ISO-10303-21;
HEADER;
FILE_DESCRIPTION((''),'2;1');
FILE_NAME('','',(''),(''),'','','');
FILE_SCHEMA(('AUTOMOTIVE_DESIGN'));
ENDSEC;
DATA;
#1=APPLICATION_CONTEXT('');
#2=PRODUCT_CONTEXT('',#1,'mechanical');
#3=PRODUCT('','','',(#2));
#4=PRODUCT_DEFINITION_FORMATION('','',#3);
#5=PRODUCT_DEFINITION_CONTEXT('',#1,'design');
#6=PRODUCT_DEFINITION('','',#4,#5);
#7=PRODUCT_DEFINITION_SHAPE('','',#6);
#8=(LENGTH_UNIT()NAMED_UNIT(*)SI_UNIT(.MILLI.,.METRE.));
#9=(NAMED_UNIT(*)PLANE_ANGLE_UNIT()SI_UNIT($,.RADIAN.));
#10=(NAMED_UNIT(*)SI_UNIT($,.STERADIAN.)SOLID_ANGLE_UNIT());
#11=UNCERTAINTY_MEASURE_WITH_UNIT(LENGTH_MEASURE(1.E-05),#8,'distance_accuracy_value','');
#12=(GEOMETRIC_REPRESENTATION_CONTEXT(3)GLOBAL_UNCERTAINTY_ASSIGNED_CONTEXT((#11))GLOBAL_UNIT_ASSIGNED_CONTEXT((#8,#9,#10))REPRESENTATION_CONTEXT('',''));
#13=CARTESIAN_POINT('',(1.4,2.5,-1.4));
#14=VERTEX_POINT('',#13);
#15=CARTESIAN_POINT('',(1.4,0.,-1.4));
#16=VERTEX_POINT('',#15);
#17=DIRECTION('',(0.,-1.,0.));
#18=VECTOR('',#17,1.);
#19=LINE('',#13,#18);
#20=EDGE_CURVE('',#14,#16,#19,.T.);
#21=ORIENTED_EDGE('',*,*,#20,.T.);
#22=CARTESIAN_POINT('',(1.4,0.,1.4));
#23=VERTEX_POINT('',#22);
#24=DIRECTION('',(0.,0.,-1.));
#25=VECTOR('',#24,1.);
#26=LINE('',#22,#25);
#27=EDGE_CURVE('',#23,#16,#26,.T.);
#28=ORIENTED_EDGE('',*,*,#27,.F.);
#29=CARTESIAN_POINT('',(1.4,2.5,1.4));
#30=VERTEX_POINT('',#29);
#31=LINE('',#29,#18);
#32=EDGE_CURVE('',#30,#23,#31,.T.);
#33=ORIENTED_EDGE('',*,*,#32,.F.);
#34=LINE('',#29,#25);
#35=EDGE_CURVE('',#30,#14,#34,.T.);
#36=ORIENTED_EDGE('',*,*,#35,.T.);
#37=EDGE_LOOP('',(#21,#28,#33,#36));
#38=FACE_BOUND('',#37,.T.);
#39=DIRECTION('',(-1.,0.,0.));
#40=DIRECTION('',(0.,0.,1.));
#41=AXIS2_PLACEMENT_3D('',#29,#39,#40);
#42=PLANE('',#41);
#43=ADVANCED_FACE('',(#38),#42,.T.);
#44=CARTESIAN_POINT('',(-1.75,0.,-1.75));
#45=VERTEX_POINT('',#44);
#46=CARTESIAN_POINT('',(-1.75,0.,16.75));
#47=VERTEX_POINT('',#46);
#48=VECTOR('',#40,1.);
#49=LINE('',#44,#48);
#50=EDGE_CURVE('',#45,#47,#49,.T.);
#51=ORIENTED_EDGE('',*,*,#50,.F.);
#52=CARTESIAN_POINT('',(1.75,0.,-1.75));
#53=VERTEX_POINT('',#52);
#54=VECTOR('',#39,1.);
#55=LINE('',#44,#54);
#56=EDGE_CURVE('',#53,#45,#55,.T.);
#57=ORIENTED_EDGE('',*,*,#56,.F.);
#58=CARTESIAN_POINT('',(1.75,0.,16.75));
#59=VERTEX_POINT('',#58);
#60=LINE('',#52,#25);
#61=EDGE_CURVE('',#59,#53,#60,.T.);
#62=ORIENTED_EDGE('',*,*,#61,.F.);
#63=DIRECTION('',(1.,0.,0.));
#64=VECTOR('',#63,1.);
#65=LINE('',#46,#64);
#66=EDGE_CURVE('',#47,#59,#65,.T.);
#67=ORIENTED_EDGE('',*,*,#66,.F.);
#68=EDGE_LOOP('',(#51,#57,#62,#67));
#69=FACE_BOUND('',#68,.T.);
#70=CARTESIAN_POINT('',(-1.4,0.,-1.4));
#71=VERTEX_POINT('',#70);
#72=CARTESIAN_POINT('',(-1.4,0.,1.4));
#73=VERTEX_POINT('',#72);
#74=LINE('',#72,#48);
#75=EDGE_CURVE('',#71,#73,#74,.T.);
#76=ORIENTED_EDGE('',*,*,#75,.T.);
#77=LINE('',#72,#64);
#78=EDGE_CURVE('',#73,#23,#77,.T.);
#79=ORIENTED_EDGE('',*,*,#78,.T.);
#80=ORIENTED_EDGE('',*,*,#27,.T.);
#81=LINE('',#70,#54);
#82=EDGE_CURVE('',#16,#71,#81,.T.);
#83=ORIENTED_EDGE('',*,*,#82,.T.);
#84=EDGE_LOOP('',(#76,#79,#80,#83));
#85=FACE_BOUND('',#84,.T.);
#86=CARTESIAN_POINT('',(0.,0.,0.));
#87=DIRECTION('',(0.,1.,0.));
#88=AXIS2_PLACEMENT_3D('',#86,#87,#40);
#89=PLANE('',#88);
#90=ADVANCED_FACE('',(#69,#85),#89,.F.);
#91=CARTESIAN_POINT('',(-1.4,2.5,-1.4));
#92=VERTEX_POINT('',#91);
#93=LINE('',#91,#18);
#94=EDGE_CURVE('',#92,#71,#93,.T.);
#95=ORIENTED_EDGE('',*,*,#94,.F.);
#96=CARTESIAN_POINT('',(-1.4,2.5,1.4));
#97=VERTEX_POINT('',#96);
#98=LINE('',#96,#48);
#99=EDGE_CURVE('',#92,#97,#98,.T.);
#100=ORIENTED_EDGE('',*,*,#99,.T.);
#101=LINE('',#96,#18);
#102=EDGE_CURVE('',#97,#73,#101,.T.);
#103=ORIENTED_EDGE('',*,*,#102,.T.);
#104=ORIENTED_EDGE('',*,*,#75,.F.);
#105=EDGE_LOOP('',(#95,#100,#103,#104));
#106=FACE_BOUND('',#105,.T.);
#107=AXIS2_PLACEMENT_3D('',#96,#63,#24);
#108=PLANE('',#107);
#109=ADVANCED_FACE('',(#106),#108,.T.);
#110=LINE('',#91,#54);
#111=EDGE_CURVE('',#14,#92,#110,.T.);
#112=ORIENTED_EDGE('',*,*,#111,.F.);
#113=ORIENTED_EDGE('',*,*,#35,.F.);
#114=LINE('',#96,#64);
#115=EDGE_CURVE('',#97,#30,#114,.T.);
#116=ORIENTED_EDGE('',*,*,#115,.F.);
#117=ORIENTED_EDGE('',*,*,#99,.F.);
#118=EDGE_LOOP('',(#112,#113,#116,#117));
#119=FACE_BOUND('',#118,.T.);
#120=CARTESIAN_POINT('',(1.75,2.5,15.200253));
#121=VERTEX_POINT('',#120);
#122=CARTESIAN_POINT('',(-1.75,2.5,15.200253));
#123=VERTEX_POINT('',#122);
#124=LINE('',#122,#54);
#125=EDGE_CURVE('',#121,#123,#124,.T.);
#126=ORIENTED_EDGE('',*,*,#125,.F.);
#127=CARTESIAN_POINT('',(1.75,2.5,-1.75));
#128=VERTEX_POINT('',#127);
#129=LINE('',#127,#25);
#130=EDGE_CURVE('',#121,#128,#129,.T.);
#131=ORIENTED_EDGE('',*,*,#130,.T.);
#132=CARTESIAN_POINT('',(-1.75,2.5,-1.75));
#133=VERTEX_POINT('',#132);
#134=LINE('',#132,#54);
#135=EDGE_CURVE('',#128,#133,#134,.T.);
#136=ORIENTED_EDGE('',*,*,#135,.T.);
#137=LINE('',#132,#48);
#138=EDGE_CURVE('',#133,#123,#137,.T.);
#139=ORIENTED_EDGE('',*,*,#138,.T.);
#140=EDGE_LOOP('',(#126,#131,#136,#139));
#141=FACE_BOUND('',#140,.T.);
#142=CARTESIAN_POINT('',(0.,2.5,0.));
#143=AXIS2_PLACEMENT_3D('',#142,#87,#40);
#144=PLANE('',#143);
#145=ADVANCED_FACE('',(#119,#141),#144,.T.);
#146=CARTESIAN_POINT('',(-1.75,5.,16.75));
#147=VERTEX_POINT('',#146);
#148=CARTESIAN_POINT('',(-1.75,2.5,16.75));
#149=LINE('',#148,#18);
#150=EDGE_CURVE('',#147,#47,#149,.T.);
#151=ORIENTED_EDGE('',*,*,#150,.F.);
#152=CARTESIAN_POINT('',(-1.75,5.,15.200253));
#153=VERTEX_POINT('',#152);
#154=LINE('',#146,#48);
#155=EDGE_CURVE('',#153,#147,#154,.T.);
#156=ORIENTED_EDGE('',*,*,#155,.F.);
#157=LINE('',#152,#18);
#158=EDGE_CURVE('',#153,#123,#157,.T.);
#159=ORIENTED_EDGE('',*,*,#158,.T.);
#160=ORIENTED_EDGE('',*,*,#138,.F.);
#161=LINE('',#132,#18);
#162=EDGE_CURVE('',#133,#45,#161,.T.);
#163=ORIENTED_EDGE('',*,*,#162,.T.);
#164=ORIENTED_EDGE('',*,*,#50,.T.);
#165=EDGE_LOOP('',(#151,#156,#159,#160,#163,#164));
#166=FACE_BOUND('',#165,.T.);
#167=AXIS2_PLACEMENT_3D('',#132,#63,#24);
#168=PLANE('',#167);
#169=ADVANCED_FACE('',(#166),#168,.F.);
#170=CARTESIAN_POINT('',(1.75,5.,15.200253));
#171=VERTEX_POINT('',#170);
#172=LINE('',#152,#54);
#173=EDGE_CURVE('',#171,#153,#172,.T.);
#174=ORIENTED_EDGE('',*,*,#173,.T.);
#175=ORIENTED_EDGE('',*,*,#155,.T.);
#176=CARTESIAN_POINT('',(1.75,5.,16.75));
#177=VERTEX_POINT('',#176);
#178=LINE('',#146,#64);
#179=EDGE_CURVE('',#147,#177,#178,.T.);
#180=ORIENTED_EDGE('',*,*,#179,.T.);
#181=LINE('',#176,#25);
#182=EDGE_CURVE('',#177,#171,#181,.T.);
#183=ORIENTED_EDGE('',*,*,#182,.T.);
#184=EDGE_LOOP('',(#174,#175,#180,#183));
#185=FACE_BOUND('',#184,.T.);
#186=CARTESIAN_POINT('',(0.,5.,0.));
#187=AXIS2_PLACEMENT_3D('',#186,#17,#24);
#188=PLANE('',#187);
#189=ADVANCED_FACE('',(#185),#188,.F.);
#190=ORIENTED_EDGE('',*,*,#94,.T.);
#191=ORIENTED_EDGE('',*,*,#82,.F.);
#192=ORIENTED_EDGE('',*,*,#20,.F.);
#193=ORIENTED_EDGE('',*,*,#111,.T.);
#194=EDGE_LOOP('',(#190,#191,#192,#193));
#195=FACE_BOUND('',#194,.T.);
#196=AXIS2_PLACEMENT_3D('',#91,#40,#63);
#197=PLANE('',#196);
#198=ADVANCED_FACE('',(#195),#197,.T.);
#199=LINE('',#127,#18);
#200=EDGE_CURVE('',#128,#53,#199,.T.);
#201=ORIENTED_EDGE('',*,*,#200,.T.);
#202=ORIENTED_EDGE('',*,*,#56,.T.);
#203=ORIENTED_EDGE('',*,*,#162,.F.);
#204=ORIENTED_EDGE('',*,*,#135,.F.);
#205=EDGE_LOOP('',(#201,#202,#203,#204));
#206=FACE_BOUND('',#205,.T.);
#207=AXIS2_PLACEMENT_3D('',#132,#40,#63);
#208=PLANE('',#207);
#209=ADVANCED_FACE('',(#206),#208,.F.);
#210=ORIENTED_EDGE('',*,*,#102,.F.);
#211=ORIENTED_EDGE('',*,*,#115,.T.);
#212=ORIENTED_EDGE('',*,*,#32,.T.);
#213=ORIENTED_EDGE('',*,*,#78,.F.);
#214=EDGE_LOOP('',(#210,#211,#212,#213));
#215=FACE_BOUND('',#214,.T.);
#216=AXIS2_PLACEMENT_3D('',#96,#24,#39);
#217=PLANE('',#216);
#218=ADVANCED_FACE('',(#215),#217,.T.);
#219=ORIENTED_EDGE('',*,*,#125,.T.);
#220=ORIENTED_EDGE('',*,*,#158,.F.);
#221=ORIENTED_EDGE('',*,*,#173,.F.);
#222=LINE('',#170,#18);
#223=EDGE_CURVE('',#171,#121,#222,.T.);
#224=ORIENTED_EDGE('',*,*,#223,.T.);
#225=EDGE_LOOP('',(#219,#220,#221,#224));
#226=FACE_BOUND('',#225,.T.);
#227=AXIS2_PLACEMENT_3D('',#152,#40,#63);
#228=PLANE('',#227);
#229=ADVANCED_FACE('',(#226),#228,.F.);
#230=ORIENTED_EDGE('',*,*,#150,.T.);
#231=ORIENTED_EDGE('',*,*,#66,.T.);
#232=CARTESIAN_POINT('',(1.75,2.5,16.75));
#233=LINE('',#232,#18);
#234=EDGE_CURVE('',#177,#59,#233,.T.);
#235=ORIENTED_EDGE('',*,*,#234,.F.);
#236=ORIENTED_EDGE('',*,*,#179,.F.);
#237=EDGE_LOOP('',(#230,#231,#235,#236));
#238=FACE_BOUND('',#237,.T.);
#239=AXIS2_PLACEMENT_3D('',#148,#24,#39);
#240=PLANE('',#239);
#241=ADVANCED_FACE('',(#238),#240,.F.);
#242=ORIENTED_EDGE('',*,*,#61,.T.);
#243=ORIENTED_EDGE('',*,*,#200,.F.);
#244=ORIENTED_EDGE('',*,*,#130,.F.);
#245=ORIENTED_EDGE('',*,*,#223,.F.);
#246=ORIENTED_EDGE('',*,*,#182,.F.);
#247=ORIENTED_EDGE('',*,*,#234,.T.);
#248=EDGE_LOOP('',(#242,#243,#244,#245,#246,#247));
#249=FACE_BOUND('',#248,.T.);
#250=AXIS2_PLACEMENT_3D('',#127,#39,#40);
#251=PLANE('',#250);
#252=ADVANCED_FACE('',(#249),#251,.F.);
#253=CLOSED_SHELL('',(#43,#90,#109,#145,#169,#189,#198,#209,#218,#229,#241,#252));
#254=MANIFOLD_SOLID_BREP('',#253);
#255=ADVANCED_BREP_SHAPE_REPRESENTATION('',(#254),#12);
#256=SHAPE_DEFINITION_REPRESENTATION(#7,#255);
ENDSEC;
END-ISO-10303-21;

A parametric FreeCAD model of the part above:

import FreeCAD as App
import Part
import Sketcher
from FreeCAD import Vector

doc = App.newDocument("Part")
body = doc.addObject("PartDesign::Body", "Body")

sketch1 = doc.addObject("Sketcher::SketchObject", "Sketch")
body.addObject(sketch1)
sketch1.AttachmentSupport = (doc.XZ_Plane, [""])
sketch1.MapMode = "FlatFace"
sketch1.addGeometry(Part.LineSegment(Vector(-1.75, -1.75, 0), Vector(-1.75, 16.75, 0)), False)
sketch1.addGeometry(Part.LineSegment(Vector(-1.75, 16.75, 0), Vector(1.75, 16.75, 0)), False)
sketch1.addGeometry(Part.LineSegment(Vector(1.75, 16.75, 0), Vector(1.75, -1.75, 0)), False)
sketch1.addGeometry(Part.LineSegment(Vector(1.75, -1.75, 0), Vector(-1.75, -1.75, 0)), False)
sketch1.addGeometry(Part.LineSegment(Vector(1.4, 1.4, 0), Vector(-1.4, 1.4, 0)), False)
sketch1.addGeometry(Part.LineSegment(Vector(-1.4, 1.4, 0), Vector(-1.4, -1.4, 0)), False)
sketch1.addGeometry(Part.LineSegment(Vector(-1.4, -1.4, 0), Vector(1.4, -1.4, 0)), False)
sketch1.addGeometry(Part.LineSegment(Vector(1.4, -1.4, 0), Vector(1.4, 1.4, 0)), False)
sketch1.addConstraint(Sketcher.Constraint("Coincident", 0, 2, 1, 1))
sketch1.addConstraint(Sketcher.Constraint("Coincident", 1, 2, 2, 1))
sketch1.addConstraint(Sketcher.Constraint("Coincident", 2, 2, 3, 1))
sketch1.addConstraint(Sketcher.Constraint("Coincident", 3, 2, 0, 1))
sketch1.addConstraint(Sketcher.Constraint("Coincident", 4, 2, 5, 1))
sketch1.addConstraint(Sketcher.Constraint("Coincident", 5, 2, 6, 1))
sketch1.addConstraint(Sketcher.Constraint("Coincident", 6, 2, 7, 1))
sketch1.addConstraint(Sketcher.Constraint("Coincident", 7, 2, 4, 1))
sketch1.addConstraint(Sketcher.Constraint("Vertical", 0))
sketch1.addConstraint(Sketcher.Constraint("Horizontal", 1))
sketch1.addConstraint(Sketcher.Constraint("Vertical", 2))
sketch1.addConstraint(Sketcher.Constraint("Horizontal", 3))
sketch1.addConstraint(Sketcher.Constraint("Horizontal", 4))
sketch1.addConstraint(Sketcher.Constraint("Vertical", 5))
sketch1.addConstraint(Sketcher.Constraint("Horizontal", 6))
sketch1.addConstraint(Sketcher.Constraint("Vertical", 7))
sketch1.addConstraint(Sketcher.Constraint("Symmetric", 4, 2, 6, 2, -1, 1))
sketch1.addConstraint(Sketcher.Constraint("Equal", 6, 5))
sketch1.addConstraint(Sketcher.Constraint("DistanceX", 1, 1, 1, 2, 3.5))
sketch1.addConstraint(Sketcher.Constraint("DistanceX", 4, 2, 4, 1, 2.8))
sketch1.addConstraint(Sketcher.Constraint("DistanceY", 0, 1, 0, 2, 18.5))
sketch1.addConstraint(Sketcher.Constraint("DistanceX", 0, 2, -1, 1, 1.75))
sketch1.addConstraint(Sketcher.Constraint("DistanceY", -1, 1, 0, 2, 16.75))
pad1 = doc.addObject("PartDesign::Pad", "Pad")
body.addObject(pad1)
pad1.Profile = sketch1
pad1.Length = 2.5
pad1.Reversed = True

sketch2 = doc.addObject("Sketcher::SketchObject", "Sketch001")
body.addObject(sketch2)
sketch2.AttachmentSupport = (doc.XZ_Plane, [""])
sketch2.MapMode = "FlatFace"
sketch2.AttachmentOffset = App.Placement(Vector(0, 0, -2.5), App.Rotation())
sketch2.addGeometry(Part.LineSegment(Vector(-1.75, 15.200253, 0), Vector(-1.75, 16.75, 0)), False)
sketch2.addGeometry(Part.LineSegment(Vector(-1.75, 16.75, 0), Vector(1.75, 16.75, 0)), False)
sketch2.addGeometry(Part.LineSegment(Vector(1.75, 16.75, 0), Vector(1.75, 15.200253, 0)), False)
sketch2.addGeometry(Part.LineSegment(Vector(1.75, 15.200253, 0), Vector(-1.75, 15.200253, 0)), False)
sketch2.addConstraint(Sketcher.Constraint("Coincident", 0, 2, 1, 1))
sketch2.addConstraint(Sketcher.Constraint("Coincident", 1, 2, 2, 1))
sketch2.addConstraint(Sketcher.Constraint("Coincident", 2, 2, 3, 1))
sketch2.addConstraint(Sketcher.Constraint("Coincident", 3, 2, 0, 1))
sketch2.addConstraint(Sketcher.Constraint("Vertical", 0))
sketch2.addConstraint(Sketcher.Constraint("Horizontal", 1))
sketch2.addConstraint(Sketcher.Constraint("Vertical", 2))
sketch2.addConstraint(Sketcher.Constraint("Horizontal", 3))
sketch2.addConstraint(Sketcher.Constraint("DistanceX", 1, 1, 1, 2, 3.5))
sketch2.addConstraint(Sketcher.Constraint("DistanceX", 0, 2, -1, 1, 1.75))
sketch2.addConstraint(Sketcher.Constraint("DistanceY", -1, 1, 0, 2, 16.75))
sketch2.addConstraint(Sketcher.Constraint("DistanceY", 0, 1, 0, 2, 1.549747))
pad2 = doc.addObject("PartDesign::Pad", "Pad001")
body.addObject(pad2)
pad2.Profile = sketch2
pad2.Length = 2.5
pad2.Reversed = True

doc.recompute()
